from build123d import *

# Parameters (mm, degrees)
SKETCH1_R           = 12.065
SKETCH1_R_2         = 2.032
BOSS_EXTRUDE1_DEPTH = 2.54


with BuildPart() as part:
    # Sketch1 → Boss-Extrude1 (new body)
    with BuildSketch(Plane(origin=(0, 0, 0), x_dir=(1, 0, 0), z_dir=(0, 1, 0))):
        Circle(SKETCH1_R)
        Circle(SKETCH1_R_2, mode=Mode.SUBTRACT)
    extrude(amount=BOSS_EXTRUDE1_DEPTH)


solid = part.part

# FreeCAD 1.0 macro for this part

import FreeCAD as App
import Part
import Sketcher
from FreeCAD import Vector
Q = App.Units.Quantity

doc = App.newDocument("Part")
body = doc.addObject("PartDesign::Body", "Body")

# Sketch on XZ plane
sketch1 = doc.addObject("Sketcher::SketchObject", "Sketch")
body.addObject(sketch1)
sketch1.AttachmentSupport = (doc.XZ_Plane, [""])
sketch1.MapMode = "FlatFace"
sketch1.addGeometry(Part.Circle(Vector(0, 0, 0), Vector(0, 0, 1), 12.1), False)
sketch1.addGeometry(Part.Circle(Vector(0, 0, 0), Vector(0, 0, 1), 2), False)
sketch1.addConstraint(Sketcher.Constraint("Coincident", 0, 3, -1, 1))
sketch1.addConstraint(Sketcher.Constraint("Coincident", 1, 3, -1, 1))
sketch1.addConstraint(Sketcher.Constraint("Diameter", 0, Q("0.95 in")))
sketch1.addConstraint(Sketcher.Constraint("Diameter", 1, Q("0.16 in")))
pad1 = doc.addObject("PartDesign::Pad", "Pad")
body.addObject(pad1)
pad1.Profile = sketch1
pad1.Length = Q("0.1 in")
pad1.Reversed = True

doc.recompute()
